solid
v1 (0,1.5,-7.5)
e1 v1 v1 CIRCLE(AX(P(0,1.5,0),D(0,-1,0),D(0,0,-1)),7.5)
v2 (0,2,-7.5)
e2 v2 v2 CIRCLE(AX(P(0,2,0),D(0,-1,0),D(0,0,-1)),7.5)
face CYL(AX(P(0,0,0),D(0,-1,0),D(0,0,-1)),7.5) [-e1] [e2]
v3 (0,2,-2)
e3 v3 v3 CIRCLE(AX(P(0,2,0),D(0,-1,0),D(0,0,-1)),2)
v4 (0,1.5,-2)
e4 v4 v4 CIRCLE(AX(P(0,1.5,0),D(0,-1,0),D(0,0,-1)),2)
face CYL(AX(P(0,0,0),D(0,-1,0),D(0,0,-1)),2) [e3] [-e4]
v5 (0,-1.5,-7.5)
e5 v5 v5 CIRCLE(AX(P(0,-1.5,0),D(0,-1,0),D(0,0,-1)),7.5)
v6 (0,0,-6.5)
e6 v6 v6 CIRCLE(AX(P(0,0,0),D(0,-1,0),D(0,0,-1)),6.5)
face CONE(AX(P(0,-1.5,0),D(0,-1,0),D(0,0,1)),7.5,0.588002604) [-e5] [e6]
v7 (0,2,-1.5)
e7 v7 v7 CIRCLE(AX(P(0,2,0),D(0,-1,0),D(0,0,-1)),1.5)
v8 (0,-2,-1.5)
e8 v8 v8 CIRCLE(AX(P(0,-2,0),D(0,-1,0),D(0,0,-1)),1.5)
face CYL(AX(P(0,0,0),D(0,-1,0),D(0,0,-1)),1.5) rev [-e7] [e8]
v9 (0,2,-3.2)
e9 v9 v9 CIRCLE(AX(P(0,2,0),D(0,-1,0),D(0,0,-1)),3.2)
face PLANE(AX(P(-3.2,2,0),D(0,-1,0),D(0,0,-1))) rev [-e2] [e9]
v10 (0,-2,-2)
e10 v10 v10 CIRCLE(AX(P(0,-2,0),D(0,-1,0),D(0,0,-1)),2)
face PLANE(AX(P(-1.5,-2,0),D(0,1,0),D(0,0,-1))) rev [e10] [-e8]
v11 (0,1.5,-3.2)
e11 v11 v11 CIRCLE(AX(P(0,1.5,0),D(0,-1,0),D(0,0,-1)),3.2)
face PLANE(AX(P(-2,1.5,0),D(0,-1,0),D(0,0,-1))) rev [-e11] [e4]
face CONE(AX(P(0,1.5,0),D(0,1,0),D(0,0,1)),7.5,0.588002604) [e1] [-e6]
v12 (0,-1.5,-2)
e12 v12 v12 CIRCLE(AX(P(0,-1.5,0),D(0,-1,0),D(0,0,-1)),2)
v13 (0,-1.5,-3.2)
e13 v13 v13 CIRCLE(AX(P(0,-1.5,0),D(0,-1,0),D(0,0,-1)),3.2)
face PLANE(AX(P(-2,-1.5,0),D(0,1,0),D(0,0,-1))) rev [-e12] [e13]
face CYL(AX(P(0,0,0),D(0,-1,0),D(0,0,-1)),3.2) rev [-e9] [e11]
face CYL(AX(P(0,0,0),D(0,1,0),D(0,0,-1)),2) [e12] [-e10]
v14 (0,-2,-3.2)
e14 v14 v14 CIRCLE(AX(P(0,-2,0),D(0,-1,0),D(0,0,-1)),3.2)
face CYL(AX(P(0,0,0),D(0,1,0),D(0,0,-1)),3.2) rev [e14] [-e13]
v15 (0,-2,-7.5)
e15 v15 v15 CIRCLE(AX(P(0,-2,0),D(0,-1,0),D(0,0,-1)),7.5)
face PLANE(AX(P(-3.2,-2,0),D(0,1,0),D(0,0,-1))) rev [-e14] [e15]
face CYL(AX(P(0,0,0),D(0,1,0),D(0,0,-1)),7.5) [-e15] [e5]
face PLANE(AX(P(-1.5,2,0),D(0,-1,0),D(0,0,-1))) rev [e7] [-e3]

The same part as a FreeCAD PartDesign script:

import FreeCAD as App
import Part
import Sketcher
from FreeCAD import Vector


def add_polygon(sketch, points):
    """Adds a closed chain of lines whose ends are joined by coincident constraints."""
    first, n = sketch.GeometryCount, len(points)
    for a, b in zip(points, points[1:] + points[:1]):
        sketch.addGeometry(Part.LineSegment(App.Vector(*a, 0), App.Vector(*b, 0)), False)
    for i in range(n):
        sketch.addConstraint(Sketcher.Constraint("Coincident", first + i, 2, first + (i + 1) % n, 1))

doc = App.newDocument("Part")
body = doc.addObject("PartDesign::Body", "Body")

# Sketch on XY plane
sketch1 = body.newObject("Sketcher::SketchObject", "Sketch")
sketch1.AttachmentSupport = (doc.getObject("XY_Plane"), [""])
sketch1.MapMode = "FlatFace"
add_polygon(sketch1, [(-1.5, 0), (-1.5, 2), (-2, 2), (-2, 1.5), (-3.2, 1.5), (-3.2, 2), (-7.5, 2), (-7.5, 1.5), (-6.5, 0)])  # lines 0-8
sketch1.addConstraint(Sketcher.Constraint("Vertical", 0))
sketch1.addConstraint(Sketcher.Constraint("Horizontal", 1))
sketch1.addConstraint(Sketcher.Constraint("Vertical", 2))
sketch1.addConstraint(Sketcher.Constraint("Horizontal", 3))
sketch1.addConstraint(Sketcher.Constraint("Vertical", 4))
sketch1.addConstraint(Sketcher.Constraint("Horizontal", 5))
sketch1.addConstraint(Sketcher.Constraint("Vertical", 6))
sketch1.addConstraint(Sketcher.Constraint("Horizontal", 8))
sketch1.addConstraint(Sketcher.Constraint("PointOnObject", 7, 2, -1))
sketch1.addConstraint(Sketcher.Constraint("Horizontal", 1, 2, 4, 2))
sketch1.addConstraint(Sketcher.Constraint("Horizontal", 3, 2, 6, 2))
sketch1.addConstraint(Sketcher.Constraint("Equal", 1, 2))
sketch1.addConstraint(Sketcher.Constraint("DistanceX", 8, 1, 8, 2, 5.0))
sketch1.addConstraint(Sketcher.Constraint("DistanceY", 0, 1, 0, 2, 2.0))
sketch1.addConstraint(Sketcher.Constraint("DistanceX", 1, 2, 1, 1, 0.5))
sketch1.addConstraint(Sketcher.Constraint("DistanceX", 3, 2, 3, 1, 1.2))
sketch1.addConstraint(Sketcher.Constraint("DistanceX", 5, 2, 5, 1, 4.3))
sketch1.addConstraint(Sketcher.Constraint("DistanceX", 1, 2, -1, 1, 2.0))
revolution = body.newObject("PartDesign::Revolution", "Revolution")
revolution.Profile = sketch1
revolution.ReferenceAxis = (sketch1, ["V_Axis"])
revolution.Angle = 360
doc.recompute()

mirrored = body.newObject("PartDesign::Mirrored", "Mirrored")
mirrored.Originals = [revolution]
mirrored.MirrorPlane = (doc.getObject("XZ_Plane"), [""])
body.Tip = mirrored

doc.recompute()
